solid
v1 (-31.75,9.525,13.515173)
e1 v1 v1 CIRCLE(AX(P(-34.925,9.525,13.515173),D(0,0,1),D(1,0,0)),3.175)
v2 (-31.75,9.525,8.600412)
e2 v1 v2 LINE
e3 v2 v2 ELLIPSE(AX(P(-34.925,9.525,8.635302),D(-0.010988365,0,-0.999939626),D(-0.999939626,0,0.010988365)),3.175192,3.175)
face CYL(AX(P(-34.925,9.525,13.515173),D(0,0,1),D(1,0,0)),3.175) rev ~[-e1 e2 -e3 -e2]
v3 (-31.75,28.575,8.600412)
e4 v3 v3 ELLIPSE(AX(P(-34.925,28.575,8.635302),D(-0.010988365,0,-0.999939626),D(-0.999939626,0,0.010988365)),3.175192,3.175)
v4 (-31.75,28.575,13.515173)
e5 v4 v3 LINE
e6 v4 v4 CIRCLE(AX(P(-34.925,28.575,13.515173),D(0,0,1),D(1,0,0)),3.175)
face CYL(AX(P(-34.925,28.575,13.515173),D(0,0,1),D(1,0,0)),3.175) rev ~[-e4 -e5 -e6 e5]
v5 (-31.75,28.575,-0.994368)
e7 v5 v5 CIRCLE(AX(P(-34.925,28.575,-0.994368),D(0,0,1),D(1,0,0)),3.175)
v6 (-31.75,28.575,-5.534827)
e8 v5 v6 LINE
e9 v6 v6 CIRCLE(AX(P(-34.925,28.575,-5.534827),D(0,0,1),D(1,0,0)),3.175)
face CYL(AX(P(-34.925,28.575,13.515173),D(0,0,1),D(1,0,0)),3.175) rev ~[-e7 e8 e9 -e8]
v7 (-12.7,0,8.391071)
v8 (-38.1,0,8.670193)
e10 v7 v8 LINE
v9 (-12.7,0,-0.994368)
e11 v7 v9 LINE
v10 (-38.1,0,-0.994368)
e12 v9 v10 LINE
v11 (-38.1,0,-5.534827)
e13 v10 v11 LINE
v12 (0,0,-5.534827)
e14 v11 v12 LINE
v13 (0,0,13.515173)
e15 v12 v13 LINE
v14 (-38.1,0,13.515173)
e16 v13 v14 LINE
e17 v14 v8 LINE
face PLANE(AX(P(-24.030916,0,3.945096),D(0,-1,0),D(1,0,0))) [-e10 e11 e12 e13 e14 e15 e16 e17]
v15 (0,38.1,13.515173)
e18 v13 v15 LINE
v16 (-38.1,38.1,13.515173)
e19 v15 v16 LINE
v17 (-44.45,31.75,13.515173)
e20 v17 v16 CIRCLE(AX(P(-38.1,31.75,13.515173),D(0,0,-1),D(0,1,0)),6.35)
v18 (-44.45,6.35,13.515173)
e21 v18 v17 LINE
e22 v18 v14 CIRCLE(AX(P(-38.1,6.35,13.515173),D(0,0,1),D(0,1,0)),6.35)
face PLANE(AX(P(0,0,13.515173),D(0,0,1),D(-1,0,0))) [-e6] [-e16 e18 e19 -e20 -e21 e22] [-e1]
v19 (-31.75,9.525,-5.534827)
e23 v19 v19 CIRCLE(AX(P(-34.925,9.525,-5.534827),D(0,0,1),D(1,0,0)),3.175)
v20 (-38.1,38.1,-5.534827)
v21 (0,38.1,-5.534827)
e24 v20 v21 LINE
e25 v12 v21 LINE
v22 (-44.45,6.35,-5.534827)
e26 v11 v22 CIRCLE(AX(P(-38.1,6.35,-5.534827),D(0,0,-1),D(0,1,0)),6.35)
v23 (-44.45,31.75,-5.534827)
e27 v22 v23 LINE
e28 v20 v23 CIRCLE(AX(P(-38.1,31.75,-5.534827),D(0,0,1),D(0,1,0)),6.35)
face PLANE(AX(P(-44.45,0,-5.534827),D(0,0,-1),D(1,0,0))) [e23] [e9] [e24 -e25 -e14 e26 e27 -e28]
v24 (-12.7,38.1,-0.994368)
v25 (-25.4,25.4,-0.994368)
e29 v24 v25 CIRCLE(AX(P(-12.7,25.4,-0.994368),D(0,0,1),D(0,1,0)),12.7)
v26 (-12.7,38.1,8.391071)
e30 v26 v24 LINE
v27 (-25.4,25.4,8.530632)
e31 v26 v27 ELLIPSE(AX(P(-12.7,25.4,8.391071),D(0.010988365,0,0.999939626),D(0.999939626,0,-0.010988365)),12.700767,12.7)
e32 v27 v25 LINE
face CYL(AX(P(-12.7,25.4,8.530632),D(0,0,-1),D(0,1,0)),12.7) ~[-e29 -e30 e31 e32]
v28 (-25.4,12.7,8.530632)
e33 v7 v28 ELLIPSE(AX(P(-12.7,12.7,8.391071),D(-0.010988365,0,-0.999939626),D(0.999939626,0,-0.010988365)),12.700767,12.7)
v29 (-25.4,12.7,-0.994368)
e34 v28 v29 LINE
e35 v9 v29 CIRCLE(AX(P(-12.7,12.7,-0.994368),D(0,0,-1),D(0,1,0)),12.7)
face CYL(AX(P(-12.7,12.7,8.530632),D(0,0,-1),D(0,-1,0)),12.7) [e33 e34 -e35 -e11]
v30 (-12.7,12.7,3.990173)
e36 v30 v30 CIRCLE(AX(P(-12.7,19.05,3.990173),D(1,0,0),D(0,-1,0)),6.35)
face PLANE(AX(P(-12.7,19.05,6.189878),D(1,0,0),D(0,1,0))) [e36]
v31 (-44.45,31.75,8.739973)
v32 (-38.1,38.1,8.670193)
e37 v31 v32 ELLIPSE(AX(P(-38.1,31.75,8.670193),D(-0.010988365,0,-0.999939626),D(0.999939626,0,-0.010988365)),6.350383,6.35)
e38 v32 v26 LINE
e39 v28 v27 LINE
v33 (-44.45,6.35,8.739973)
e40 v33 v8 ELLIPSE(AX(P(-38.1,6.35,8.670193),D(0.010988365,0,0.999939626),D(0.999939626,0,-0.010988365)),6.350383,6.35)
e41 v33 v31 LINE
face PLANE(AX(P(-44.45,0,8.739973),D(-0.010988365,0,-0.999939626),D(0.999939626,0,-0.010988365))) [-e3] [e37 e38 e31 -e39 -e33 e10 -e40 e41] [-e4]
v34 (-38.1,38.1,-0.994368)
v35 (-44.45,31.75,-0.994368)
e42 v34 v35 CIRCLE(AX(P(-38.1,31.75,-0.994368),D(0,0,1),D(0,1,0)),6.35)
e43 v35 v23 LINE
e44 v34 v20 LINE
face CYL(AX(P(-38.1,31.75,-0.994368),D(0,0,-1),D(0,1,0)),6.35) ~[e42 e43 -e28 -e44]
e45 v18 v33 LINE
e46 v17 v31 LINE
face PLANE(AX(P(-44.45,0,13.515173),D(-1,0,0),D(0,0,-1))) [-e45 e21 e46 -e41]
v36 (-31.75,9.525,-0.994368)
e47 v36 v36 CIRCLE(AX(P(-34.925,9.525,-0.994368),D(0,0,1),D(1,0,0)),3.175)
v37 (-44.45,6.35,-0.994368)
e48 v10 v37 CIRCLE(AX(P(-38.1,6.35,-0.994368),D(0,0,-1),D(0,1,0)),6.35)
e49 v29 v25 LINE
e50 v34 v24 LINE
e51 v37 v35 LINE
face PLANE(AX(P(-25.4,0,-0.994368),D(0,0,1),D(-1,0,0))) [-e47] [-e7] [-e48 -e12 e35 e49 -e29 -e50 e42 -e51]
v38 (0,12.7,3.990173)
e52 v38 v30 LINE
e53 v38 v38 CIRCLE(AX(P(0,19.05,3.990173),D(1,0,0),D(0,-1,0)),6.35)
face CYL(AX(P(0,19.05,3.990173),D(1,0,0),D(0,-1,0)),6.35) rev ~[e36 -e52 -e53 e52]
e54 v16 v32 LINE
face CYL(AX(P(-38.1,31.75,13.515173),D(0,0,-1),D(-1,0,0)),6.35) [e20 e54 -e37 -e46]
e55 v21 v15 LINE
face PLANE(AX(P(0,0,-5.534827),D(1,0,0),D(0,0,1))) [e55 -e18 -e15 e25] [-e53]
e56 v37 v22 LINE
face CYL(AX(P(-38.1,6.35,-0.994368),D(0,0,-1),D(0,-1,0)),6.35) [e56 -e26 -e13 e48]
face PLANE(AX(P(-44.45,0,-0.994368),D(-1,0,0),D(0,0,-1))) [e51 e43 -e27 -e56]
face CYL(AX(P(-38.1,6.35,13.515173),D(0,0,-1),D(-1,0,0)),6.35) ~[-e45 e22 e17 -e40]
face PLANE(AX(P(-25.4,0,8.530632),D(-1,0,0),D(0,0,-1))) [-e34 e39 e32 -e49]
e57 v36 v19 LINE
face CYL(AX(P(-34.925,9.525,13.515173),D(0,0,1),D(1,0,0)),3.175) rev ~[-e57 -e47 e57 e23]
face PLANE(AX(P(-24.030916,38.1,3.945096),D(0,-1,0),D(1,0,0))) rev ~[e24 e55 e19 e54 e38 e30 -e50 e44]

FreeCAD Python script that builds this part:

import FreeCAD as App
import Part
import Sketcher

V = App.Vector
Q = App.Units.Quantity


def edges_at(feature, points):
    """Names of the edges that pass closest to the given points."""
    edges = feature.Shape.Edges
    near = lambda p: min(range(len(edges)), key=lambda i: edges[i].distToShape(Part.Vertex(*p))[0])
    return sorted({f"Edge{near(p) + 1}" for p in points})


def add_polygon(sketch, points):
    """Adds a closed chain of lines whose ends are joined by coincident constraints."""
    first, n = sketch.GeometryCount, len(points)
    for a, b in zip(points, points[1:] + points[:1]):
        sketch.addGeometry(Part.LineSegment(App.Vector(*a, 0), App.Vector(*b, 0)), False)
    for i in range(n):
        sketch.addConstraint(Sketcher.Constraint("Coincident", first + i, 2, first + (i + 1) % n, 1))

doc = App.newDocument("Part")
body = doc.addObject("PartDesign::Body", "Body")

# Sketch on XZ plane
sketch1 = body.newObject("Sketcher::SketchObject", "Sketch")
sketch1.AttachmentSupport = (doc.getObject("XZ_Plane"), [""])
sketch1.MapMode = "FlatFace"
add_polygon(sketch1, [(-44.5, 13.5), (-44.5, 8.7), (-25.4, 8.5), (-25.4, -1), (-44.5, -1), (-44.5, -5.5), (0, -5.5), (0, 13.5)])  # lines 0-7
sketch1.addConstraint(Sketcher.Constraint("Vertical", 0))
sketch1.addConstraint(Sketcher.Constraint("Vertical", 2))
sketch1.addConstraint(Sketcher.Constraint("Horizontal", 3))
sketch1.addConstraint(Sketcher.Constraint("Vertical", 4))
sketch1.addConstraint(Sketcher.Constraint("Horizontal", 5))
sketch1.addConstraint(Sketcher.Constraint("Vertical", 6))
sketch1.addConstraint(Sketcher.Constraint("Horizontal", 7))
sketch1.addConstraint(Sketcher.Constraint("PointOnObject", 5, 2, -2))
sketch1.addConstraint(Sketcher.Constraint("Vertical", 0, 2, 3, 2))
sketch1.addConstraint(Sketcher.Constraint("Equal", 3, 6))
sketch1.addConstraint(Sketcher.Constraint("DistanceX", 1, 2, -1, 1, Q("1 in")))
sketch1.addConstraint(Sketcher.Constraint("DistanceX", 3, 2, 3, 1, Q("0.75 in")))
sketch1.addConstraint(Sketcher.Constraint("DistanceY", 0, 2, 0, 1, Q("0.188 in")))
sketch1.addConstraint(Sketcher.Constraint("DistanceY", 2, 2, 2, 1, Q("0.375 in")))
sketch1.addConstraint(Sketcher.Constraint("DistanceY", 4, 2, 4, 1, Q("4.540459 mm")))
sketch1.addConstraint(Sketcher.Constraint("DistanceY", 2, 2, -1, 1, Q("0.994368 mm")))
pad1 = body.newObject("PartDesign::Pad", "Pad")
pad1.Profile = sketch1
pad1.Length = Q("1.5 in")
pad1.Reversed = True

# Sketch on XY plane
sketch2 = body.newObject("Sketcher::SketchObject", "Sketch001")
sketch2.AttachmentSupport = (doc.getObject("XY_Plane"), [""])
sketch2.MapMode = "FlatFace"
sketch2.AttachmentOffset = App.Placement(V(0, 0, 13.515173), App.Rotation())
sketch2.addGeometry(Part.Circle(V(-34.9, 28.6, 0), V(0, 0, 1), 3.2), False)
sketch2.addGeometry(Part.Circle(V(-34.9, 9.5, 0), V(0, 0, 1), 3.2), False)
sketch2.addConstraint(Sketcher.Constraint("Equal", 0, 1))
sketch2.addConstraint(Sketcher.Constraint("Vertical", 0, 3, 1, 3))
sketch2.addConstraint(Sketcher.Constraint("Diameter", 0, Q("0.25 in")))
sketch2.addConstraint(Sketcher.Constraint("DistanceY", 1, 3, 0, 3, Q("0.75 in")))
sketch2.addConstraint(Sketcher.Constraint("DistanceX", 0, 3, -1, 1, Q("1.375 in")))
sketch2.addConstraint(Sketcher.Constraint("DistanceY", -1, 1, 0, 3, Q("1.125 in")))
pocket1 = body.newObject("PartDesign::Pocket", "Pocket")
pocket1.Profile = sketch2
pocket1.Length = Q("7 in")
doc.recompute()

fillet = body.newObject("PartDesign::Fillet", "Fillet")
fillet.Base = (pocket1, edges_at(pocket1, [
    (-44.45, 38.1, 11.128),
    (-44.45, 38.1, -3.265),
    (-44.45, 0, 11.128),
    (-44.45, 0, -3.265),
]))
fillet.Radius = Q("0.25 in")

# Sketch on YZ plane
sketch3 = body.newObject("Sketcher::SketchObject", "Sketch002")
sketch3.AttachmentSupport = (doc.getObject("YZ_Plane"), [""])
sketch3.MapMode = "FlatFace"
sketch3.addGeometry(Part.Circle(V(19, 4, 0), V(0, 0, 1), 6), False)
sketch3.addConstraint(Sketcher.Constraint("Diameter", 0, Q("0.5 in")))
sketch3.addConstraint(Sketcher.Constraint("DistanceX", -1, 1, 0, 3, Q("0.75 in")))
sketch3.addConstraint(Sketcher.Constraint("DistanceY", -1, 1, 0, 3, Q("3.990173 mm")))
pocket2 = body.newObject("PartDesign::Pocket", "Pocket001")
pocket2.Profile = sketch3
pocket2.Length = Q("0.5 in")
doc.recompute()

fillet2 = body.newObject("PartDesign::Fillet", "Fillet001")
fillet2.Base = (pocket2, edges_at(pocket2, [(-25.4, 0, 3.768), (-25.4, 38.1, 3.768)]))
fillet2.Radius = Q("0.5 in")

doc.recompute()
